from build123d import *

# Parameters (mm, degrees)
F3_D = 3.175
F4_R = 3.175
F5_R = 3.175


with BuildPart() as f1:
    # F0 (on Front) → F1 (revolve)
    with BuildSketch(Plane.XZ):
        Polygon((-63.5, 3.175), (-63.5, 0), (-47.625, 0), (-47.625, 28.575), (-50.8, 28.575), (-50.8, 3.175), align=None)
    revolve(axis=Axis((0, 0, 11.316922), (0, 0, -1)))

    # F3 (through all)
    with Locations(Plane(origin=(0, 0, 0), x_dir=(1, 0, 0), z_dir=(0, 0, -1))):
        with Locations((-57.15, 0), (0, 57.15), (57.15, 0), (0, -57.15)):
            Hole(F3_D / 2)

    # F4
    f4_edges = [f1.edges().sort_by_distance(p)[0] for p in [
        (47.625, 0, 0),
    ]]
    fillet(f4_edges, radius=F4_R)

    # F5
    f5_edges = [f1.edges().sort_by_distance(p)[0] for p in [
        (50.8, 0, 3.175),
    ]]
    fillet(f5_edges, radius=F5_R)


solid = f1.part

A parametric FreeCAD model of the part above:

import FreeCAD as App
import Part
import Sketcher
from FreeCAD import Vector
Q = App.Units.Quantity


def edges_at(feature, points):
    """Names of the edges that pass closest to the given points."""
    edges = feature.Shape.Edges
    near = lambda p: min(range(len(edges)), key=lambda i: edges[i].distToShape(Part.Vertex(*p))[0])
    return sorted({f"Edge{near(p) + 1}" for p in points})


def add_polygon(sketch, points):
    """Adds a closed chain of lines whose ends are joined by coincident constraints."""
    first, n = sketch.GeometryCount, len(points)
    for a, b in zip(points, points[1:] + points[:1]):
        sketch.addGeometry(Part.LineSegment(App.Vector(*a, 0), App.Vector(*b, 0)), False)
    for i in range(n):
        sketch.addConstraint(Sketcher.Constraint("Coincident", first + i, 2, first + (i + 1) % n, 1))

doc = App.newDocument("Part")
body = doc.addObject("PartDesign::Body", "Body")

sketch1 = doc.addObject("Sketcher::SketchObject", "Sketch")
body.addObject(sketch1)
sketch1.AttachmentSupport = (doc.XZ_Plane, [""])
sketch1.MapMode = "FlatFace"
add_polygon(sketch1, [(-63.5, 3.2), (-63.5, 0), (-47.6, 0), (-47.6, 28.6), (-50.8, 28.6), (-50.8, 3.2)])
sketch1.addConstraint(Sketcher.Constraint("Vertical", 0))
sketch1.addConstraint(Sketcher.Constraint("Horizontal", 1))
sketch1.addConstraint(Sketcher.Constraint("Vertical", 2))
sketch1.addConstraint(Sketcher.Constraint("Horizontal", 3))
sketch1.addConstraint(Sketcher.Constraint("Vertical", 4))
sketch1.addConstraint(Sketcher.Constraint("Horizontal", 5))
sketch1.addConstraint(Sketcher.Constraint("PointOnObject", 0, 2, -1))
sketch1.addConstraint(Sketcher.Constraint("Equal", 3, 0))
sketch1.addConstraint(Sketcher.Constraint("DistanceY", 4, 2, 4, 1, Q("1 in")))
sketch1.addConstraint(Sketcher.Constraint("DistanceX", 5, 2, 5, 1, Q("0.5 in")))
sketch1.addConstraint(Sketcher.Constraint("DistanceX", 3, 2, -1, 1, Q("2 in")))
sketch1.addConstraint(Sketcher.Constraint("DistanceX", 1, 1, 1, 2, Q("0.625 in")))
revolution = doc.addObject("PartDesign::Revolution", "Revolution")
body.addObject(revolution)
revolution.Profile = sketch1
revolution.ReferenceAxis = (sketch1, ["V_Axis"])
revolution.Angle = 360

sketch2 = doc.addObject("Sketcher::SketchObject", "Sketch001")
body.addObject(sketch2)
sketch2.AttachmentSupport = (doc.XY_Plane, [""])
sketch2.MapMode = "FlatFace"
sketch2.addGeometry(Part.Circle(Vector(-57.1, 0, 0), Vector(0, 0, 1), 1.6), False)
sketch2.addGeometry(Part.Circle(Vector(0, -57.1, 0), Vector(0, 0, 1), 1.6), False)
sketch2.addGeometry(Part.Circle(Vector(57.1, 0, 0), Vector(0, 0, 1), 1.6), False)
sketch2.addGeometry(Part.Circle(Vector(0, 57.1, 0), Vector(0, 0, 1), 1.6), False)
sketch2.addConstraint(Sketcher.Constraint("Equal", 0, 1))
sketch2.addConstraint(Sketcher.Constraint("Equal", 1, 2))
sketch2.addConstraint(Sketcher.Constraint("Equal", 2, 3))
sketch2.addConstraint(Sketcher.Constraint("Symmetric", 0, 3, 2, 3, -1, 1))
sketch2.addConstraint(Sketcher.Constraint("Symmetric", 1, 3, 3, 3, -1, 1))
sketch2.addConstraint(Sketcher.Constraint("PointOnObject", 0, 3, -1))
sketch2.addConstraint(Sketcher.Constraint("PointOnObject", 1, 3, -2))
sketch2.addConstraint(Sketcher.Constraint("Diameter", 0, Q("0.125 in")))
sketch2.addConstraint(Sketcher.Constraint("DistanceX", 0, 3, 2, 3, Q("4.5 in")))
sketch2.addConstraint(Sketcher.Constraint("DistanceY", 1, 3, 3, 3, Q("4.5 in")))
doc.recompute()
hole = doc.addObject("PartDesign::Hole", "Hole")
body.addObject(hole)
hole.Profile = sketch2
hole.ThreadType = "None"
hole.Diameter = Q("0.125 in")
hole.DepthType = "ThroughAll"
hole.Reversed = True
doc.recompute()

fillet = doc.addObject("PartDesign::Fillet", "Fillet")
body.addObject(fillet)
fillet.Base = (hole, edges_at(hole, [(47.625, 0, 0)]))
fillet.Radius = Q("0.125 in")
doc.recompute()

fillet2 = doc.addObject("PartDesign::Fillet", "Fillet001")
body.addObject(fillet2)
fillet2.Base = (fillet, edges_at(fillet, [(50.8, 0, 3.175)]))
fillet2.Radius = Q("0.125 in")

doc.recompute()
